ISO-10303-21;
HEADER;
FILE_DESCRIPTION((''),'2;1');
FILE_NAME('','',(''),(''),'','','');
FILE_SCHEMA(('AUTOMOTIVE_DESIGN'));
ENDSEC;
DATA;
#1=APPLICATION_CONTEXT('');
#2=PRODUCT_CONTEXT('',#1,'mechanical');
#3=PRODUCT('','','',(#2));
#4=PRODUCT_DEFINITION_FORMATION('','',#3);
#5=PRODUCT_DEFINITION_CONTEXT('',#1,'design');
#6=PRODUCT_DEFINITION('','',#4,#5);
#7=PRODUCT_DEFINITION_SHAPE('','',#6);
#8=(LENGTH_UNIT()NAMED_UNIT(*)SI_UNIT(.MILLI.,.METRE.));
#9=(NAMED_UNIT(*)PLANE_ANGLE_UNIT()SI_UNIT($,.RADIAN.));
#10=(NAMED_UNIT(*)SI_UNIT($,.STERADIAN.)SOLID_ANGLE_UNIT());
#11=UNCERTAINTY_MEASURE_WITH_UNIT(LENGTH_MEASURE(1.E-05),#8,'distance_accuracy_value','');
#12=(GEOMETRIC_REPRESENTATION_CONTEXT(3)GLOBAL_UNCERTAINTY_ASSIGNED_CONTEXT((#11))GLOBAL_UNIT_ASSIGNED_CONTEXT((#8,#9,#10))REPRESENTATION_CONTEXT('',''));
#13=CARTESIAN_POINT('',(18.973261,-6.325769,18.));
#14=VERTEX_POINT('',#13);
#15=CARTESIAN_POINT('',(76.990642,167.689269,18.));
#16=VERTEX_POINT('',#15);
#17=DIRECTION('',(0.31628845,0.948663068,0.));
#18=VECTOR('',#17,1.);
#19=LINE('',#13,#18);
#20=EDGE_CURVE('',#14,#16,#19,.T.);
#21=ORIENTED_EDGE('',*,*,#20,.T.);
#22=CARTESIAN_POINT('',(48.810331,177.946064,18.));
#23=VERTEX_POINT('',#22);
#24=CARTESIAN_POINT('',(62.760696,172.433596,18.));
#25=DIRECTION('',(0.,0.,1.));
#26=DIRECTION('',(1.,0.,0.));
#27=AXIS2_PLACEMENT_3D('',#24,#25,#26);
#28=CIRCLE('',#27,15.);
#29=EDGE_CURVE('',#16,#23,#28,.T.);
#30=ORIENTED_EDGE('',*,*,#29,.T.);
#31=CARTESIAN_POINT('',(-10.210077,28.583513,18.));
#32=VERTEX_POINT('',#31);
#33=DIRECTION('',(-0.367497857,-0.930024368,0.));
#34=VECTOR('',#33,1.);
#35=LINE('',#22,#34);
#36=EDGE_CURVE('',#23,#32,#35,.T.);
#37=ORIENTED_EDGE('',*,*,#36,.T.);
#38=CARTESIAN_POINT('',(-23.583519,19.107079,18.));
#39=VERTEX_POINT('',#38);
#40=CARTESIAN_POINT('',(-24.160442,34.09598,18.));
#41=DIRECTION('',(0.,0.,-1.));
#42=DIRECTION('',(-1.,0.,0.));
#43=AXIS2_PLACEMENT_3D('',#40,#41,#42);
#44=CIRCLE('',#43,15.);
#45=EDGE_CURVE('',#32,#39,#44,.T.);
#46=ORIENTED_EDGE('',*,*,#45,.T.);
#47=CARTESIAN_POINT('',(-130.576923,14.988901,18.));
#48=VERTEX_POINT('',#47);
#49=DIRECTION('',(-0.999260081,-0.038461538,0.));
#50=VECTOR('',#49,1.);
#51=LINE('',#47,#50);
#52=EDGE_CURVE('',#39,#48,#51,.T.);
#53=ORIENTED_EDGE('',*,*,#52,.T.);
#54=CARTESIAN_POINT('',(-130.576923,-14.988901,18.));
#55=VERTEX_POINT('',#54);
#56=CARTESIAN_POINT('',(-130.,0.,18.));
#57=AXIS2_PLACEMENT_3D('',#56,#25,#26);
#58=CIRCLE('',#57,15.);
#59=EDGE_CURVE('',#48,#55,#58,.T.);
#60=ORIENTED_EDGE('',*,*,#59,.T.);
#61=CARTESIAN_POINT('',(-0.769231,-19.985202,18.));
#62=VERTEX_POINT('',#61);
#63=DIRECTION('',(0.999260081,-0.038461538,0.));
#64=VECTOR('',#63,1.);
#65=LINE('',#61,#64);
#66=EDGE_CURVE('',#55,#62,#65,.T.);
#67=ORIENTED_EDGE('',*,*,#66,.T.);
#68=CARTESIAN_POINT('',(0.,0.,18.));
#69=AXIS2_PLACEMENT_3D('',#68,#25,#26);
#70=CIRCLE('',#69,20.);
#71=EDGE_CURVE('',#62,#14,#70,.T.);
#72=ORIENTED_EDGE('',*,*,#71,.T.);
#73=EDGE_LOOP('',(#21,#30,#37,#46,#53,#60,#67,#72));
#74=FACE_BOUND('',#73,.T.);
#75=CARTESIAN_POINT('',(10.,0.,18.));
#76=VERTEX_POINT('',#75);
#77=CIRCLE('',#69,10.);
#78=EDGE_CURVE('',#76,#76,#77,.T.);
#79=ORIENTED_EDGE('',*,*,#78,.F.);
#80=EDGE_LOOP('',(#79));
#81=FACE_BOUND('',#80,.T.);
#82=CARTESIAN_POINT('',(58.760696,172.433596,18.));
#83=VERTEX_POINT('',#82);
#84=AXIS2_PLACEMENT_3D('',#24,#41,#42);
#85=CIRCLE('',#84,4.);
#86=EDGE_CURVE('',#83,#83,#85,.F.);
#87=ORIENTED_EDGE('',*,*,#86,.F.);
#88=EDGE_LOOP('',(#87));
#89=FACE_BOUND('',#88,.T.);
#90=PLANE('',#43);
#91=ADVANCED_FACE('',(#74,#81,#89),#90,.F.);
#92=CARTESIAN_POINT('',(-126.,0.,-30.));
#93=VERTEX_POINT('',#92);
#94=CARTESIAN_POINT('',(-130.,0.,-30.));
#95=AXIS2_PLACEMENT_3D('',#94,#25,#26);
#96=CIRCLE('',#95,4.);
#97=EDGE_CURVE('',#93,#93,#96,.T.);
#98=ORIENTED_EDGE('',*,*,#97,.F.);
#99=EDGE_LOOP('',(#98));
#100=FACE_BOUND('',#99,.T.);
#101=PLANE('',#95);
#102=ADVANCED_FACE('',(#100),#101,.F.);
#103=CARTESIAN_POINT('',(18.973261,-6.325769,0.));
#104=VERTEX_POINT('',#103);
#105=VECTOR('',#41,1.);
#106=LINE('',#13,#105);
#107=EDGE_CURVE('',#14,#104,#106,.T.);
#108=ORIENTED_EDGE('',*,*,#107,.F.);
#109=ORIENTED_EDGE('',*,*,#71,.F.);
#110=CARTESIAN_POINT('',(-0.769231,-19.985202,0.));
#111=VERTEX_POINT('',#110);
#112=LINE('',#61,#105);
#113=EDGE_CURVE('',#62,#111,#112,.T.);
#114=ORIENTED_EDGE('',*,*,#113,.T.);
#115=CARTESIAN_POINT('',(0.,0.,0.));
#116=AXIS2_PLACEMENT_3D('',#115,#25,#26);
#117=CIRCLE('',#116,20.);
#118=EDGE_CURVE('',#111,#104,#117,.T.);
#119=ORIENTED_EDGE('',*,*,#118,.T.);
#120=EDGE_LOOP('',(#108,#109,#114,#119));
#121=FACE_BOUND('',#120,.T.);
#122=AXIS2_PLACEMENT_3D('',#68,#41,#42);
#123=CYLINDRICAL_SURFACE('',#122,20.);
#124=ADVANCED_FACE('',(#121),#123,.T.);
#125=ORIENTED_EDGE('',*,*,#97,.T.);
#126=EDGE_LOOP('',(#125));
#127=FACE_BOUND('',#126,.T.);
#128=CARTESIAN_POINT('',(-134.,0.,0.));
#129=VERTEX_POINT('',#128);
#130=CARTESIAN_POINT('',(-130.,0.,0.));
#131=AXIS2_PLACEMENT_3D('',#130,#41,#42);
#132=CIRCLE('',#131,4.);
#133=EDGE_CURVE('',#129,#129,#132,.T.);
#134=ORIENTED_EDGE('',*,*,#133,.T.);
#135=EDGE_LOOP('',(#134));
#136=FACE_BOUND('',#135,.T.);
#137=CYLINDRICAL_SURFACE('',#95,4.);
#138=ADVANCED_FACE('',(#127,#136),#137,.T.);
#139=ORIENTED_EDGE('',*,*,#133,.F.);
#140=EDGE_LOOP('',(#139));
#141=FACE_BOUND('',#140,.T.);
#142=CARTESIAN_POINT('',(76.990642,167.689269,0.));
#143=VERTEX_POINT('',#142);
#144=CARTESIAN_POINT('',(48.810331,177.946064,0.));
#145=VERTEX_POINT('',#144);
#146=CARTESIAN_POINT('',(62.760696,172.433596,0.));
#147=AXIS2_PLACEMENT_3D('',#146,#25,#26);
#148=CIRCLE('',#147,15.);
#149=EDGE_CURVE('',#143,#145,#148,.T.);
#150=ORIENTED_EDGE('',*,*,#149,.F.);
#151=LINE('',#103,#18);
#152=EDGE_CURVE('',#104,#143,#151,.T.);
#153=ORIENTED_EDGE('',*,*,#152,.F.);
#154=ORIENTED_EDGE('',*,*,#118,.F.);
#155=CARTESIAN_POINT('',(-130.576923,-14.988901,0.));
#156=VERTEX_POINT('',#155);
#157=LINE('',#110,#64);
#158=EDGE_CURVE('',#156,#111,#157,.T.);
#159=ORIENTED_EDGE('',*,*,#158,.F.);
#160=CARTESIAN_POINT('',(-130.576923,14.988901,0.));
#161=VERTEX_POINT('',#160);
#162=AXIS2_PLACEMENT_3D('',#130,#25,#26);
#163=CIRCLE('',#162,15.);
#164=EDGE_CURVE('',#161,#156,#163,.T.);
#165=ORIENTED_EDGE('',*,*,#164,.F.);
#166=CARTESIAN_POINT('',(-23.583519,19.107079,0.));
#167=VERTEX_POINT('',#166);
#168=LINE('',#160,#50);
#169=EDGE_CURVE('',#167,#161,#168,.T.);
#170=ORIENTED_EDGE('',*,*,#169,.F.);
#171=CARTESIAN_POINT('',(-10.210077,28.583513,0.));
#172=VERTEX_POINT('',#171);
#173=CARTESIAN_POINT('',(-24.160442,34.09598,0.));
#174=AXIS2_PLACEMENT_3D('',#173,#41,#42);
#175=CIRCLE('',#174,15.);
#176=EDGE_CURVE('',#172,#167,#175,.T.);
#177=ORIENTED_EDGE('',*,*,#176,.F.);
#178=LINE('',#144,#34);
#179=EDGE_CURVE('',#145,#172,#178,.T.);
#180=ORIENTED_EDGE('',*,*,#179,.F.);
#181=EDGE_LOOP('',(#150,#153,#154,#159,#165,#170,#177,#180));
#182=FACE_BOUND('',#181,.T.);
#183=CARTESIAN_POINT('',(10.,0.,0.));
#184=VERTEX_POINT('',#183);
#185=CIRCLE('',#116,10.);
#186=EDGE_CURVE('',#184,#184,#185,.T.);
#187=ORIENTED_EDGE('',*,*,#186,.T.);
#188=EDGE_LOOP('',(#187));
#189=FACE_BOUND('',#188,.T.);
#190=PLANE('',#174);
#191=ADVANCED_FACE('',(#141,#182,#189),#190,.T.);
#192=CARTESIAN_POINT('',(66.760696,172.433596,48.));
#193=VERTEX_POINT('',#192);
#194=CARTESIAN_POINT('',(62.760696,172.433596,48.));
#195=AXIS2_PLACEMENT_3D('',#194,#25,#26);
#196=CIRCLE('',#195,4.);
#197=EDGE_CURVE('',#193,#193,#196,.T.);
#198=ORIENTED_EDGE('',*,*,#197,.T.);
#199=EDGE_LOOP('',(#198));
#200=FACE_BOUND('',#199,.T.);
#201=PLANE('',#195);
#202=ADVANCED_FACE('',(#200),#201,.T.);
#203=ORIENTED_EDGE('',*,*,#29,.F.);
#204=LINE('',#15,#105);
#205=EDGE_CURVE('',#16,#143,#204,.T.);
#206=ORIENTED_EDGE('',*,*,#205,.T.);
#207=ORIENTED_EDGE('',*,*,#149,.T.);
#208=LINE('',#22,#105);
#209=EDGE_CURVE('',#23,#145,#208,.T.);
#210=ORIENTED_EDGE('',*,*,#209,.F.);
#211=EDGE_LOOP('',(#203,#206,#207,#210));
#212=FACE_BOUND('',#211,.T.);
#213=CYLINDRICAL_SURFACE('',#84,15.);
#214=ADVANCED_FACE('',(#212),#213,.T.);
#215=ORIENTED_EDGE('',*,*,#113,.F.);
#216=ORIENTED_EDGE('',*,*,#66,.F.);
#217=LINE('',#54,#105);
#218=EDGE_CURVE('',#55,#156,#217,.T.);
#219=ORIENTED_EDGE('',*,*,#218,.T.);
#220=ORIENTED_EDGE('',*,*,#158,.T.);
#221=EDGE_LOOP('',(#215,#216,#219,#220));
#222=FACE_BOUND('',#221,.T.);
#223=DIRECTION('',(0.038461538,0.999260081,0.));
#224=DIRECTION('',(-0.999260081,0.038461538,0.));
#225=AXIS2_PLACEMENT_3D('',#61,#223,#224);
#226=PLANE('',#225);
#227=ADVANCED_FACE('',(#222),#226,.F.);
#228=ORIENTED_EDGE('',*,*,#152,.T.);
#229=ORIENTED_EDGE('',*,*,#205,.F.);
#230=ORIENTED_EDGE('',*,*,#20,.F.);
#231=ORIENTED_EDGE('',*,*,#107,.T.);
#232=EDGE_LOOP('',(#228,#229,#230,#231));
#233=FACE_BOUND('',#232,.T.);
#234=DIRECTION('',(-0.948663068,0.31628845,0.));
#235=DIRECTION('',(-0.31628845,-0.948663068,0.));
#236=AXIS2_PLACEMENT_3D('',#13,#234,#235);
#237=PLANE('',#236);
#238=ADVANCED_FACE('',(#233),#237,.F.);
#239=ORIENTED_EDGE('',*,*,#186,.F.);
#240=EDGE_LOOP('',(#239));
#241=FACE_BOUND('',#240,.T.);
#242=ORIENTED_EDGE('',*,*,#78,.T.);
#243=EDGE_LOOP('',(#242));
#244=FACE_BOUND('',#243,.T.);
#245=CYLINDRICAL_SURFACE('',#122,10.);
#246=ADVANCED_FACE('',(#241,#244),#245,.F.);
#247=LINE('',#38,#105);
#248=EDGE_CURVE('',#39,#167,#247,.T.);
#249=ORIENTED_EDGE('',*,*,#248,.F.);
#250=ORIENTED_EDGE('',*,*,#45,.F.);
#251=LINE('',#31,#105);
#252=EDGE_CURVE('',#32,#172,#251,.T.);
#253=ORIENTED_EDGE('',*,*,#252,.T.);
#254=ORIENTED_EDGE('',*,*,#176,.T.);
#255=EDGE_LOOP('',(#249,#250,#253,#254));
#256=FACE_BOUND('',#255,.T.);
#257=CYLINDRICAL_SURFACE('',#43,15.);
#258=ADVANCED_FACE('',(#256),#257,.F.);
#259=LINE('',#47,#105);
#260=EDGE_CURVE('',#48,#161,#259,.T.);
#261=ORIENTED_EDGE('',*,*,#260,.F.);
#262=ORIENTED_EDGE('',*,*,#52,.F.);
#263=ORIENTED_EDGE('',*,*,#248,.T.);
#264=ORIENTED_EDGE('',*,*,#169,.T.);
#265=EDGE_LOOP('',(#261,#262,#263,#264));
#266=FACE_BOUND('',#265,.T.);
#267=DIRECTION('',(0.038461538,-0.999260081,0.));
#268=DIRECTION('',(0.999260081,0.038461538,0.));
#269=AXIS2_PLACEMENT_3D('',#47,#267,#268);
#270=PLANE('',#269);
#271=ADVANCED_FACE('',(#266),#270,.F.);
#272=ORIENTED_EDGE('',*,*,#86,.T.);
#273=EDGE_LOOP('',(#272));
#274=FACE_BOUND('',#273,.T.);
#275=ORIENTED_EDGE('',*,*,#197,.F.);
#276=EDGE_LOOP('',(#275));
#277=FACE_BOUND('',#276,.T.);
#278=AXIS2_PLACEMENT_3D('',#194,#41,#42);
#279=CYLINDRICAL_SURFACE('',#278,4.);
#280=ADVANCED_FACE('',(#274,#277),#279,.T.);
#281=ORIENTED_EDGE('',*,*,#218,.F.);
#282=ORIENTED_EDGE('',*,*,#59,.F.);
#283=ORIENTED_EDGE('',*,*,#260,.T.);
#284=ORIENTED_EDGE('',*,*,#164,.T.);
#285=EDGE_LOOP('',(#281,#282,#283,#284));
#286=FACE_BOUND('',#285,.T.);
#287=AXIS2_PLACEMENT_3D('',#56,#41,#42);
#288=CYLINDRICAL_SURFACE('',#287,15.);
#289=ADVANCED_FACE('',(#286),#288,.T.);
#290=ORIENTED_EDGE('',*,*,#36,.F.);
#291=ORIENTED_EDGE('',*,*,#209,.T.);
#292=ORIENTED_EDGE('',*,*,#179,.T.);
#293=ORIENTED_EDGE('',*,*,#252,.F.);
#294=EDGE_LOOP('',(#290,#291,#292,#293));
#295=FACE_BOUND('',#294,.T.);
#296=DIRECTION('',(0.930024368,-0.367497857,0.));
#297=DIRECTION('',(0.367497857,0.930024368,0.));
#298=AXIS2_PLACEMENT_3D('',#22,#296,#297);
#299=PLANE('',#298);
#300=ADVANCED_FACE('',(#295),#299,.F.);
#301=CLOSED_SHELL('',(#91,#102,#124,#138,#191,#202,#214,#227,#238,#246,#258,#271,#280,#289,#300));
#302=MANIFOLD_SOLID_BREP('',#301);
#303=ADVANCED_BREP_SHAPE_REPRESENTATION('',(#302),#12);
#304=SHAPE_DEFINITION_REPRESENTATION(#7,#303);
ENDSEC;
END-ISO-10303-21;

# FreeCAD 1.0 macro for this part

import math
import FreeCAD as App
import Part
import Sketcher

doc = App.newDocument("Part")
body = doc.addObject("PartDesign::Body", "Body")

# Sketch on XY plane
sketch1 = body.newObject("Sketcher::SketchObject", "Sketch")
sketch1.AttachmentSupport = (doc.getObject("XY_Plane"), [""])
sketch1.MapMode = "FlatFace"
sketch1.addGeometry(Part.LineSegment(App.Vector(-131, -15, 0), App.Vector(-1, -20, 0)), False)
sketch1.addGeometry(Part.ArcOfCircle(Part.Circle(App.Vector(0, 0, 0), App.Vector(0, 0, 1), 20), math.radians(-92), math.radians(-18)), False)
sketch1.addGeometry(Part.LineSegment(App.Vector(19, -6, 0), App.Vector(77, 168, 0)), False)
sketch1.addGeometry(Part.ArcOfCircle(Part.Circle(App.Vector(63, 172, 0), App.Vector(0, 0, 1), 15), math.radians(-18), math.radians(158)), False)
sketch1.addGeometry(Part.LineSegment(App.Vector(49, 178, 0), App.Vector(-10, 29, 0)), False)
sketch1.addGeometry(Part.ArcOfCircle(Part.Circle(App.Vector(-24, 34, 0), App.Vector(0, 0, 1), 15), math.radians(-88), math.radians(-22)), False)
sketch1.addGeometry(Part.LineSegment(App.Vector(-24, 19, 0), App.Vector(-131, 15, 0)), False)
sketch1.addGeometry(Part.ArcOfCircle(Part.Circle(App.Vector(-130, 0, 0), App.Vector(0, 0, 1), 15), math.radians(92), math.radians(268)), False)
sketch1.addConstraint(Sketcher.Constraint("Tangent", 0, 2, 1, 1))
sketch1.addConstraint(Sketcher.Constraint("Tangent", 1, 2, 2, 1))
sketch1.addConstraint(Sketcher.Constraint("Tangent", 2, 2, 3, 1))
sketch1.addConstraint(Sketcher.Constraint("Tangent", 3, 2, 4, 1))
sketch1.addConstraint(Sketcher.Constraint("Tangent", 4, 2, 5, 2))
sketch1.addConstraint(Sketcher.Constraint("Tangent", 5, 1, 6, 1))
sketch1.addConstraint(Sketcher.Constraint("Tangent", 6, 2, 7, 1))
sketch1.addConstraint(Sketcher.Constraint("Tangent", 7, 2, 0, 1))
sketch1.addConstraint(Sketcher.Constraint("Coincident", 1, 3, -1, 1))
sketch1.addConstraint(Sketcher.Constraint("Equal", 3, 5))
sketch1.addConstraint(Sketcher.Constraint("Equal", 5, 7))
sketch1.addConstraint(Sketcher.Constraint("Symmetric", 6, 2, 7, 2, -1))
sketch1.addConstraint(Sketcher.Constraint("Radius", 1, 20.0))
sketch1.addConstraint(Sketcher.Constraint("Radius", 3, 15.0))
sketch1.addConstraint(Sketcher.Constraint("DistanceX", 7, 3, -1, 1, 130.0))
sketch1.addConstraint(Sketcher.Constraint("Distance", 6, 107.072629))
sketch1.addConstraint(Sketcher.Constraint("DistanceX", -1, 1, 1, 2, 18.973261))
sketch1.addConstraint(Sketcher.Constraint("DistanceY", -1, 1, 2, 2, 167.689269))
pad1 = body.newObject("PartDesign::Pad", "Pad")
pad1.Profile = sketch1
pad1.Length = 18

# Sketch on XY plane
sketch2 = body.newObject("Sketcher::SketchObject", "Sketch001")
sketch2.AttachmentSupport = (doc.getObject("XY_Plane"), [""])
sketch2.MapMode = "FlatFace"
sketch2.addGeometry(Part.Circle(App.Vector(0, 0, 0), App.Vector(0, 0, 1), 10), False)
sketch2.addConstraint(Sketcher.Constraint("Coincident", 0, 3, -1, 1))
sketch2.addConstraint(Sketcher.Constraint("Diameter", 0, 20.0))
pocket1 = body.newObject("PartDesign::Pocket", "Pocket")
pocket1.Profile = sketch2
pocket1.Length = 18
pocket1.Reversed = True

# Sketch on XY plane
sketch3 = body.newObject("Sketcher::SketchObject", "Sketch002")
sketch3.AttachmentSupport = (doc.getObject("XY_Plane"), [""])
sketch3.MapMode = "FlatFace"
sketch3.addGeometry(Part.Circle(App.Vector(-130, 0, 0), App.Vector(0, 0, 1), 4), False)
sketch3.addConstraint(Sketcher.Constraint("PointOnObject", 0, 3, -1))
sketch3.addConstraint(Sketcher.Constraint("Diameter", 0, 8.0))
sketch3.addConstraint(Sketcher.Constraint("DistanceX", 0, 3, -1, 1, 130.0))
pad2 = body.newObject("PartDesign::Pad", "Pad001")
pad2.Profile = sketch3
pad2.Length = 30
pad2.Reversed = True

# Sketch on XY plane
sketch4 = body.newObject("Sketcher::SketchObject", "Sketch003")
sketch4.AttachmentSupport = (doc.getObject("XY_Plane"), [""])
sketch4.MapMode = "FlatFace"
sketch4.AttachmentOffset = App.Placement(App.Vector(0, 0, 18), App.Rotation())
sketch4.addGeometry(Part.Circle(App.Vector(62.8, 172.4, 0), App.Vector(0, 0, 1), 4), False)
sketch4.addConstraint(Sketcher.Constraint("Diameter", 0, 8.0))
sketch4.addConstraint(Sketcher.Constraint("DistanceX", -1, 1, 0, 3, 62.760696))
sketch4.addConstraint(Sketcher.Constraint("DistanceY", -1, 1, 0, 3, 172.433596))
pad3 = body.newObject("PartDesign::Pad", "Pad002")
pad3.Profile = sketch4
pad3.Length = 30

doc.recompute()
